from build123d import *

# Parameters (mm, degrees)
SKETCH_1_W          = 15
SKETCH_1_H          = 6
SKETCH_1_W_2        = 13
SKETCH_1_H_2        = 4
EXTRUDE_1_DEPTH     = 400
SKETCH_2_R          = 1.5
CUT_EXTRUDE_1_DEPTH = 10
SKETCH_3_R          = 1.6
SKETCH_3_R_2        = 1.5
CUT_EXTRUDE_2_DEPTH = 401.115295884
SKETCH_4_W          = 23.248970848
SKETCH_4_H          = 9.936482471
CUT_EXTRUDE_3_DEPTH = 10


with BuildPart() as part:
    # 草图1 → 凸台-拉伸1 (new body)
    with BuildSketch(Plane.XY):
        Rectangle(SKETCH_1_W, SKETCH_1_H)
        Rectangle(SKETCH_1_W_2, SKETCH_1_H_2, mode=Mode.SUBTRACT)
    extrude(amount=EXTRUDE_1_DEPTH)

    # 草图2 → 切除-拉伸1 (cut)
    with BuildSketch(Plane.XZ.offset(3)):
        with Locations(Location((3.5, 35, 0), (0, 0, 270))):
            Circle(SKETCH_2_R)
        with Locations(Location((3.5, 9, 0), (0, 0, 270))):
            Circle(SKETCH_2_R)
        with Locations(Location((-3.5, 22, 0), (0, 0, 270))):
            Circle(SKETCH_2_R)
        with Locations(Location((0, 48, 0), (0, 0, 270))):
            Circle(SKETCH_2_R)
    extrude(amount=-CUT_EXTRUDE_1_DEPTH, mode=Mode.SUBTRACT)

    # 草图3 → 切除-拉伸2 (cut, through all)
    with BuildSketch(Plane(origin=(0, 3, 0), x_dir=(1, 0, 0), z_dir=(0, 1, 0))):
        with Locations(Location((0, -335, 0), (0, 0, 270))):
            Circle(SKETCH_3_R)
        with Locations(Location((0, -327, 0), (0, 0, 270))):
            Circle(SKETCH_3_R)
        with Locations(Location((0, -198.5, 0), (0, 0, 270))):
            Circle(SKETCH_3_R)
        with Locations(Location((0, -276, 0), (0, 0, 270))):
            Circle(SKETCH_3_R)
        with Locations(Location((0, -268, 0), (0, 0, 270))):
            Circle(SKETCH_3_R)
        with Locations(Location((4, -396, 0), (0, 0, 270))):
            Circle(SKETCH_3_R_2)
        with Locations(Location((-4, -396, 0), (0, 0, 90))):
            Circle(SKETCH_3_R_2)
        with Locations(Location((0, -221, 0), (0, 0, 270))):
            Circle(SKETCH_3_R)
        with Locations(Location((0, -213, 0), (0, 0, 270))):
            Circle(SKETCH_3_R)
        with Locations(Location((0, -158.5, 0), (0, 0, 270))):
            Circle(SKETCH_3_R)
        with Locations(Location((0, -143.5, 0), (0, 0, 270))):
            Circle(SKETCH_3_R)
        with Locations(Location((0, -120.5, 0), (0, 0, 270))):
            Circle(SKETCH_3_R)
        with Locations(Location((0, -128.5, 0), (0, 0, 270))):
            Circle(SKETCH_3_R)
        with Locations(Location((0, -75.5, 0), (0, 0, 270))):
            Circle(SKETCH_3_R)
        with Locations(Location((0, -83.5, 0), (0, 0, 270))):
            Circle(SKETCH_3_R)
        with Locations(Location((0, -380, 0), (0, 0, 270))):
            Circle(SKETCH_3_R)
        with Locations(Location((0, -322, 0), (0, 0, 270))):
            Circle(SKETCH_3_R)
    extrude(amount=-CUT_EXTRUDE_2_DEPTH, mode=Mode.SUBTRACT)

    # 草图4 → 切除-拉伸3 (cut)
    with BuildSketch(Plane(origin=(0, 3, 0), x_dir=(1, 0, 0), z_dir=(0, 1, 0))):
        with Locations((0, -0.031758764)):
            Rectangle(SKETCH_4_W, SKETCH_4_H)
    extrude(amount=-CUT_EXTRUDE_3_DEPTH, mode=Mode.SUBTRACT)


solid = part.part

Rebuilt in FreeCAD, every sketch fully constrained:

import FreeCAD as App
import Part
import Sketcher
from FreeCAD import Vector
Q = App.Units.Quantity


def add_polygon(sketch, points):
    """Adds a closed chain of lines whose ends are joined by coincident constraints."""
    first, n = sketch.GeometryCount, len(points)
    for a, b in zip(points, points[1:] + points[:1]):
        sketch.addGeometry(Part.LineSegment(App.Vector(*a, 0), App.Vector(*b, 0)), False)
    for i in range(n):
        sketch.addConstraint(Sketcher.Constraint("Coincident", first + i, 2, first + (i + 1) % n, 1))

doc = App.newDocument("Part")
body = doc.addObject("PartDesign::Body", "Body")

sketch1 = body.newObject("Sketcher::SketchObject", "Sketch")
sketch1.AttachmentSupport = (doc.getObject("XY_Plane"), [""])
sketch1.MapMode = "FlatFace"
add_polygon(sketch1, [(-7.5, 3), (-7.5, -3), (7.5, -3), (7.5, 3)])
add_polygon(sketch1, [(6.5, -2), (-6.5, -2), (-6.5, 2), (6.5, 2)])
sketch1.addConstraint(Sketcher.Constraint("Vertical", 0))
sketch1.addConstraint(Sketcher.Constraint("Horizontal", 1))
sketch1.addConstraint(Sketcher.Constraint("Vertical", 2))
sketch1.addConstraint(Sketcher.Constraint("Horizontal", 3))
sketch1.addConstraint(Sketcher.Constraint("Horizontal", 4))
sketch1.addConstraint(Sketcher.Constraint("Vertical", 5))
sketch1.addConstraint(Sketcher.Constraint("Horizontal", 6))
sketch1.addConstraint(Sketcher.Constraint("Vertical", 7))
sketch1.addConstraint(Sketcher.Constraint("Symmetric", 0, 2, 2, 2, -1, 1))
sketch1.addConstraint(Sketcher.Constraint("Symmetric", 4, 2, 6, 2, -1, 1))
sketch1.addConstraint(Sketcher.Constraint("DistanceX", 1, 1, 1, 2, Q("15 mm")))
sketch1.addConstraint(Sketcher.Constraint("DistanceX", 4, 2, 4, 1, Q("13 mm")))
sketch1.addConstraint(Sketcher.Constraint("DistanceY", 0, 2, 0, 1, Q("6 mm")))
sketch1.addConstraint(Sketcher.Constraint("DistanceY", 5, 1, 5, 2, Q("4 mm")))
pad1 = body.newObject("PartDesign::Pad", "Pad")
pad1.Profile = sketch1
pad1.Length = 400

sketch2 = body.newObject("Sketcher::SketchObject", "Sketch001")
sketch2.AttachmentSupport = (doc.getObject("XZ_Plane"), [""])
sketch2.MapMode = "FlatFace"
sketch2.AttachmentOffset = App.Placement(Vector(0, 0, 3), App.Rotation())
sketch2.addGeometry(Part.Circle(Vector(3.5, 35, 0), Vector(0, 0, 1), 1.5), False)
sketch2.addGeometry(Part.Circle(Vector(3.5, 9, 0), Vector(0, 0, 1), 1.5), False)
sketch2.addGeometry(Part.Circle(Vector(-3.5, 22, 0), Vector(0, 0, 1), 1.5), False)
sketch2.addGeometry(Part.Circle(Vector(0, 48, 0), Vector(0, 0, 1), 1.5), False)
sketch2.addConstraint(Sketcher.Constraint("Equal", 0, 1))
sketch2.addConstraint(Sketcher.Constraint("Equal", 1, 2))
sketch2.addConstraint(Sketcher.Constraint("Equal", 2, 3))
sketch2.addConstraint(Sketcher.Constraint("PointOnObject", 3, 3, -2))
sketch2.addConstraint(Sketcher.Constraint("Vertical", 0, 3, 1, 3))
sketch2.addConstraint(Sketcher.Constraint("Diameter", 0, Q("3 mm")))
sketch2.addConstraint(Sketcher.Constraint("DistanceY", -1, 1, 0, 3, Q("35 mm")))
sketch2.addConstraint(Sketcher.Constraint("DistanceY", -1, 1, 1, 3, Q("9 mm")))
sketch2.addConstraint(Sketcher.Constraint("DistanceY", -1, 1, 2, 3, Q("22 mm")))
sketch2.addConstraint(Sketcher.Constraint("DistanceY", -1, 1, 3, 3, Q("48 mm")))
sketch2.addConstraint(Sketcher.Constraint("DistanceX", 2, 3, 0, 3, Q("7 mm")))
sketch2.addConstraint(Sketcher.Constraint("DistanceX", -1, 1, 0, 3, Q("3.5 mm")))
pocket1 = body.newObject("PartDesign::Pocket", "Pocket")
pocket1.Profile = sketch2
pocket1.Length = 10

sketch3 = body.newObject("Sketcher::SketchObject", "Sketch002")
sketch3.AttachmentSupport = (doc.getObject("XZ_Plane"), [""])
sketch3.MapMode = "FlatFace"
sketch3.AttachmentOffset = App.Placement(Vector(0, 0, -3), App.Rotation())
sketch3.addGeometry(Part.Circle(Vector(0, 335, 0), Vector(0, 0, 1), 1.6), False)
sketch3.addGeometry(Part.Circle(Vector(0, 327, 0), Vector(0, 0, 1), 1.6), False)
sketch3.addGeometry(Part.Circle(Vector(0, 198.5, 0), Vector(0, 0, 1), 1.6), False)
sketch3.addGeometry(Part.Circle(Vector(0, 276, 0), Vector(0, 0, 1), 1.6), False)
sketch3.addGeometry(Part.Circle(Vector(0, 268, 0), Vector(0, 0, 1), 1.6), False)
sketch3.addGeometry(Part.Circle(Vector(4, 396, 0), Vector(0, 0, 1), 1.5), False)
sketch3.addGeometry(Part.Circle(Vector(-4, 396, 0), Vector(0, 0, 1), 1.5), False)
sketch3.addGeometry(Part.Circle(Vector(0, 221, 0), Vector(0, 0, 1), 1.6), False)
sketch3.addGeometry(Part.Circle(Vector(0, 213, 0), Vector(0, 0, 1), 1.6), False)
sketch3.addGeometry(Part.Circle(Vector(0, 158.5, 0), Vector(0, 0, 1), 1.6), False)
sketch3.addGeometry(Part.Circle(Vector(0, 143.5, 0), Vector(0, 0, 1), 1.6), False)
sketch3.addGeometry(Part.Circle(Vector(0, 120.5, 0), Vector(0, 0, 1), 1.6), False)
sketch3.addGeometry(Part.Circle(Vector(0, 128.5, 0), Vector(0, 0, 1), 1.6), False)
sketch3.addGeometry(Part.Circle(Vector(0, 75.5, 0), Vector(0, 0, 1), 1.6), False)
sketch3.addGeometry(Part.Circle(Vector(0, 83.5, 0), Vector(0, 0, 1), 1.6), False)
sketch3.addGeometry(Part.Circle(Vector(0, 380, 0), Vector(0, 0, 1), 1.6), False)
sketch3.addGeometry(Part.Circle(Vector(0, 322, 0), Vector(0, 0, 1), 1.6), False)
sketch3.addConstraint(Sketcher.Constraint("Equal", 0, 1))
sketch3.addConstraint(Sketcher.Constraint("Equal", 1, 2))
sketch3.addConstraint(Sketcher.Constraint("Equal", 2, 3))
sketch3.addConstraint(Sketcher.Constraint("Equal", 3, 4))
sketch3.addConstraint(Sketcher.Constraint("Equal", 5, 6))
sketch3.addConstraint(Sketcher.Constraint("Equal", 4, 7))
sketch3.addConstraint(Sketcher.Constraint("Equal", 7, 8))
sketch3.addConstraint(Sketcher.Constraint("Equal", 8, 9))
sketch3.addConstraint(Sketcher.Constraint("Equal", 9, 10))
sketch3.addConstraint(Sketcher.Constraint("Equal", 10, 11))
sketch3.addConstraint(Sketcher.Constraint("Equal", 11, 12))
sketch3.addConstraint(Sketcher.Constraint("Equal", 12, 13))
sketch3.addConstraint(Sketcher.Constraint("Equal", 13, 14))
sketch3.addConstraint(Sketcher.Constraint("Equal", 14, 15))
sketch3.addConstraint(Sketcher.Constraint("Equal", 15, 16))
sketch3.addConstraint(Sketcher.Constraint("Symmetric", 5, 3, 6, 3, -2))
sketch3.addConstraint(Sketcher.Constraint("PointOnObject", 0, 3, -2))
sketch3.addConstraint(Sketcher.Constraint("PointOnObject", 1, 3, -2))
sketch3.addConstraint(Sketcher.Constraint("PointOnObject", 2, 3, -2))
sketch3.addConstraint(Sketcher.Constraint("PointOnObject", 3, 3, -2))
sketch3.addConstraint(Sketcher.Constraint("PointOnObject", 4, 3, -2))
sketch3.addConstraint(Sketcher.Constraint("PointOnObject", 7, 3, -2))
sketch3.addConstraint(Sketcher.Constraint("PointOnObject", 8, 3, -2))
sketch3.addConstraint(Sketcher.Constraint("PointOnObject", 9, 3, -2))
sketch3.addConstraint(Sketcher.Constraint("PointOnObject", 10, 3, -2))
sketch3.addConstraint(Sketcher.Constraint("PointOnObject", 11, 3, -2))
sketch3.addConstraint(Sketcher.Constraint("PointOnObject", 12, 3, -2))
sketch3.addConstraint(Sketcher.Constraint("PointOnObject", 13, 3, -2))
sketch3.addConstraint(Sketcher.Constraint("PointOnObject", 14, 3, -2))
sketch3.addConstraint(Sketcher.Constraint("PointOnObject", 15, 3, -2))
sketch3.addConstraint(Sketcher.Constraint("PointOnObject", 16, 3, -2))
sketch3.addConstraint(Sketcher.Constraint("Diameter", 5, Q("3 mm")))
sketch3.addConstraint(Sketcher.Constraint("Diameter", 0, Q("3.2 mm")))
sketch3.addConstraint(Sketcher.Constraint("DistanceY", -1, 1, 0, 3, Q("335 mm")))
sketch3.addConstraint(Sketcher.Constraint("DistanceY", -1, 1, 1, 3, Q("327 mm")))
sketch3.addConstraint(Sketcher.Constraint("DistanceY", -1, 1, 3, 3, Q("276 mm")))
sketch3.addConstraint(Sketcher.Constraint("DistanceY", -1, 1, 4, 3, Q("268 mm")))
sketch3.addConstraint(Sketcher.Constraint("DistanceX", -1, 1, 5, 3, Q("4 mm")))
sketch3.addConstraint(Sketcher.Constraint("DistanceY", -1, 1, 5, 3, Q("396 mm")))
sketch3.addConstraint(Sketcher.Constraint("DistanceY", -1, 1, 7, 3, Q("221 mm")))
sketch3.addConstraint(Sketcher.Constraint("DistanceY", -1, 1, 8, 3, Q("213 mm")))
sketch3.addConstraint(Sketcher.Constraint("DistanceY", -1, 1, 15, 3, Q("380 mm")))
sketch3.addConstraint(Sketcher.Constraint("DistanceY", -1, 1, 16, 3, Q("322 mm")))
sketch3.addConstraint(Sketcher.Constraint("DistanceY", 9, 3, 2, 3, Q("40 mm")))
sketch3.addConstraint(Sketcher.Constraint("DistanceY", 10, 3, 9, 3, Q("15 mm")))
sketch3.addConstraint(Sketcher.Constraint("DistanceY", 11, 3, 10, 3, Q("23 mm")))
sketch3.addConstraint(Sketcher.Constraint("DistanceY", 11, 3, 12, 3, Q("8 mm")))
sketch3.addConstraint(Sketcher.Constraint("DistanceY", 13, 3, 11, 3, Q("45 mm")))
sketch3.addConstraint(Sketcher.Constraint("DistanceY", 13, 3, 14, 3, Q("8 mm")))
sketch3.addConstraint(Sketcher.Constraint("DistanceY", -1, 1, 2, 3, Q("198.5 mm")))
pocket2 = body.newObject("PartDesign::Pocket", "Pocket001")
pocket2.Profile = sketch3
pocket2.Type = "ThroughAll"
pocket2.Reversed = True

sketch4 = body.newObject("Sketcher::SketchObject", "Sketch003")
sketch4.AttachmentSupport = (doc.getObject("XZ_Plane"), [""])
sketch4.MapMode = "FlatFace"
sketch4.AttachmentOffset = App.Placement(Vector(0, 0, -3), App.Rotation())
add_polygon(sketch4, [(-12, -5), (-12, 5), (12, 5), (12, -5)])
sketch4.addConstraint(Sketcher.Constraint("Vertical", 0))
sketch4.addConstraint(Sketcher.Constraint("Horizontal", 1))
sketch4.addConstraint(Sketcher.Constraint("Vertical", 2))
sketch4.addConstraint(Sketcher.Constraint("Horizontal", 3))
sketch4.addConstraint(Sketcher.Constraint("DistanceY", -1, 1, 0, 2, Q("5 mm")))
sketch4.addConstraint(Sketcher.Constraint("DistanceX", 1, 1, 1, 2, Q("23.248971 mm")))
sketch4.addConstraint(Sketcher.Constraint("DistanceY", 0, 1, 0, 2, Q("9.936482 mm")))
sketch4.addConstraint(Sketcher.Constraint("DistanceX", 0, 2, -1, 1, Q("11.624485 mm")))
pocket3 = body.newObject("PartDesign::Pocket", "Pocket002")
pocket3.Profile = sketch4
pocket3.Length = 10
pocket3.Reversed = True

doc.recompute()
